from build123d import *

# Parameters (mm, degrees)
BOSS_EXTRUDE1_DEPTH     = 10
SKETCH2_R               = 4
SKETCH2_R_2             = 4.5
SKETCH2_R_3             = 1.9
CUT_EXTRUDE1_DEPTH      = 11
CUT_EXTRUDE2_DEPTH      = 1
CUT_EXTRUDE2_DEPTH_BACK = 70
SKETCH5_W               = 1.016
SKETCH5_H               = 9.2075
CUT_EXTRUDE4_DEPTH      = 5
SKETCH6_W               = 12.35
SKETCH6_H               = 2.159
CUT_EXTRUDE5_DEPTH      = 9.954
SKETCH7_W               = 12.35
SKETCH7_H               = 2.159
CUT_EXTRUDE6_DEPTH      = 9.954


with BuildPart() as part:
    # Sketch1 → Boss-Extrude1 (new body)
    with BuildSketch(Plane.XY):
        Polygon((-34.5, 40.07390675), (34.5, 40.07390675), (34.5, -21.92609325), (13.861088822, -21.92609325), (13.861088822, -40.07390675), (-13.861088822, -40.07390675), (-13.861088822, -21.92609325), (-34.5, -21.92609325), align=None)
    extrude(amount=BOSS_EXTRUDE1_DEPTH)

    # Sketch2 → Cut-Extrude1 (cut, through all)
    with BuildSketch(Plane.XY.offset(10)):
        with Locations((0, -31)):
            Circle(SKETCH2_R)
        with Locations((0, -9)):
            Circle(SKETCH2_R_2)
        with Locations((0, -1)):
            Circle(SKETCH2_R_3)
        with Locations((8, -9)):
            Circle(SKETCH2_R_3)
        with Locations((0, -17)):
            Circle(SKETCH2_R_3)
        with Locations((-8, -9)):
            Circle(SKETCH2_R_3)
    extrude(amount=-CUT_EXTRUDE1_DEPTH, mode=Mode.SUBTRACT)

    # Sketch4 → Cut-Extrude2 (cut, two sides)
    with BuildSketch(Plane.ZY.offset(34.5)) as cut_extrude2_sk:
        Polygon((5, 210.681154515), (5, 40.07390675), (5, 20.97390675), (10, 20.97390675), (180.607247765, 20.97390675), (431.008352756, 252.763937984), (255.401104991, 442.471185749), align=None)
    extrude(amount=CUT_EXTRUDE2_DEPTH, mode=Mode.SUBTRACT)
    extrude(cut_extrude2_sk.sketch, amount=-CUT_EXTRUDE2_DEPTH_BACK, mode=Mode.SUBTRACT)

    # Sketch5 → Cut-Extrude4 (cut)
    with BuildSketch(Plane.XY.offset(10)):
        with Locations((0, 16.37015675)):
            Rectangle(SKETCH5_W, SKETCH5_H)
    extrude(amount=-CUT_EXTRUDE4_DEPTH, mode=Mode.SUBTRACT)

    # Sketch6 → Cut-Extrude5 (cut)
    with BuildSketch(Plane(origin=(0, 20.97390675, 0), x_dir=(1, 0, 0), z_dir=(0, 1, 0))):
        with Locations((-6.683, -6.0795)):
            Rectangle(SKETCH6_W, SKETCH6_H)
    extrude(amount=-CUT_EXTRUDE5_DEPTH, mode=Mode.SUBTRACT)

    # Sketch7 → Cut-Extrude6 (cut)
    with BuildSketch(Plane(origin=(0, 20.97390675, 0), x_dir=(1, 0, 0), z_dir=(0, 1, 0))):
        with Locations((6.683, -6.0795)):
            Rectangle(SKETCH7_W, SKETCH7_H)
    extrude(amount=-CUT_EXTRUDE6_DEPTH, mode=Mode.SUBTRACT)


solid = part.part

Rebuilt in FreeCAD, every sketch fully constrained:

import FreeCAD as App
import Part
import Sketcher

V = App.Vector

doc = App.newDocument("Part")
body = doc.addObject("PartDesign::Body", "Body")

sketch1 = body.newObject("Sketcher::SketchObject", "Sketch")
sketch1.AttachmentSupport = (doc.getObject("XY_Plane"), [""])
sketch1.MapMode = "FlatFace"
sketch1.addGeometry([
    Part.LineSegment(V(34, 40, 0), V(-34, 40, 0)),
    Part.LineSegment(V(-34, 40, 0), V(-34, -22, 0)),
    Part.LineSegment(V(-34, -22, 0), V(-14, -22, 0)),
    Part.LineSegment(V(-14, -22, 0), V(-14, -40, 0)),
    Part.LineSegment(V(-14, -40, 0), V(14, -40, 0)),
    Part.LineSegment(V(14, -40, 0), V(14, -22, 0)),
    Part.LineSegment(V(14, -22, 0), V(34, -22, 0)),
    Part.LineSegment(V(34, -22, 0), V(34, 40, 0)),
], False)
sketch1.addConstraint([
    Sketcher.Constraint("Coincident", 0, 2, 1, 1),
    Sketcher.Constraint("Coincident", 1, 2, 2, 1),
    Sketcher.Constraint("Coincident", 2, 2, 3, 1),
    Sketcher.Constraint("Coincident", 3, 2, 4, 1),
    Sketcher.Constraint("Coincident", 4, 2, 5, 1),
    Sketcher.Constraint("Coincident", 5, 2, 6, 1),
    Sketcher.Constraint("Coincident", 6, 2, 7, 1),
    Sketcher.Constraint("Coincident", 7, 2, 0, 1),
    Sketcher.Constraint("Horizontal", 0),
    Sketcher.Constraint("Vertical", 1),
    Sketcher.Constraint("Horizontal", 2),
    Sketcher.Constraint("Vertical", 3),
    Sketcher.Constraint("Horizontal", 4),
    Sketcher.Constraint("Vertical", 5),
    Sketcher.Constraint("Horizontal", 6),
    Sketcher.Constraint("Vertical", 7),
    Sketcher.Constraint("Symmetric", 2, 2, 5, 2, -2),
    Sketcher.Constraint("Equal", 2, 6),
    Sketcher.Constraint("DistanceX", 0, 2, 0, 1, 69.0),
    Sketcher.Constraint("DistanceY", 1, 2, 1, 1, 62.0),
    Sketcher.Constraint("DistanceX", 2, 1, 2, 2, 20.638911),
    Sketcher.Constraint("DistanceY", 3, 2, 3, 1, 18.147813),
    Sketcher.Constraint("DistanceY", -1, 1, 0, 2, 40.073907),
])
pad1 = body.newObject("PartDesign::Pad", "Pad")
pad1.Profile = sketch1
pad1.Length = 10

sketch2 = body.newObject("Sketcher::SketchObject", "Sketch001")
sketch2.AttachmentSupport = (doc.getObject("XY_Plane"), [""])
sketch2.MapMode = "FlatFace"
sketch2.AttachmentOffset = App.Placement(V(0, 0, 10), App.Rotation())
sketch2.addGeometry([
    Part.Circle(V(0, -31, 0), V(0, 0, 1), 4),
    Part.Circle(V(0, -9, 0), V(0, 0, 1), 4.5),
    Part.Circle(V(0, -1, 0), V(0, 0, 1), 1.9),
    Part.Circle(V(8, -9, 0), V(0, 0, 1), 1.9),
    Part.Circle(V(0, -17, 0), V(0, 0, 1), 1.9),
    Part.Circle(V(-8, -9, 0), V(0, 0, 1), 1.9),
], False)
sketch2.addConstraint([
    Sketcher.Constraint("Equal", 2, 3),
    Sketcher.Constraint("Equal", 3, 4),
    Sketcher.Constraint("Equal", 4, 5),
    Sketcher.Constraint("Symmetric", 3, 3, 5, 3, -2),
    Sketcher.Constraint("PointOnObject", 0, 3, -2),
    Sketcher.Constraint("PointOnObject", 1, 3, -2),
    Sketcher.Constraint("PointOnObject", 2, 3, -2),
    Sketcher.Constraint("PointOnObject", 4, 3, -2),
    Sketcher.Constraint("Horizontal", 1, 3, 3, 3),
    Sketcher.Constraint("Diameter", 0, 8.0),
    Sketcher.Constraint("Diameter", 1, 9.0),
    Sketcher.Constraint("Diameter", 2, 3.8),
    Sketcher.Constraint("DistanceY", 0, 3, -1, 1, 31.0),
    Sketcher.Constraint("DistanceY", 1, 3, -1, 1, 9.0),
    Sketcher.Constraint("DistanceY", 2, 3, -1, 1, 1.0),
    Sketcher.Constraint("DistanceX", -1, 1, 3, 3, 8.0),
    Sketcher.Constraint("DistanceY", 4, 3, -1, 1, 17.0),
])
pocket1 = body.newObject("PartDesign::Pocket", "Pocket")
pocket1.Profile = sketch2
pocket1.Type = "ThroughAll"

sketch3 = body.newObject("Sketcher::SketchObject", "Sketch002")
sketch3.AttachmentSupport = (doc.getObject("YZ_Plane"), [""])
sketch3.MapMode = "FlatFace"
sketch3.AttachmentOffset = App.Placement(V(0, 0, -34.5), App.Rotation())
sketch3.addGeometry([
    Part.LineSegment(V(211, 5, 0), V(21, 5, 0)),
    Part.LineSegment(V(21, 5, 0), V(21, 181, 0)),
    Part.LineSegment(V(21, 181, 0), V(253, 431, 0)),
    Part.LineSegment(V(253, 431, 0), V(442, 255, 0)),
    Part.LineSegment(V(442, 255, 0), V(211, 5, 0)),
], False)
sketch3.addConstraint([
    Sketcher.Constraint("Coincident", 0, 2, 1, 1),
    Sketcher.Constraint("Coincident", 1, 2, 2, 1),
    Sketcher.Constraint("Coincident", 2, 2, 3, 1),
    Sketcher.Constraint("Coincident", 3, 2, 4, 1),
    Sketcher.Constraint("Coincident", 4, 2, 0, 1),
    Sketcher.Constraint("Horizontal", 0),
    Sketcher.Constraint("Vertical", 1),
    Sketcher.Constraint("Perpendicular", 2, 3),
    Sketcher.Constraint("Perpendicular", 3, 4),
    Sketcher.Constraint("Equal", 2, 4),
    Sketcher.Constraint("DistanceY", -1, 1, 0, 2, 5.0),
    Sketcher.Constraint("DistanceX", 0, 2, 0, 1, 189.707248),
    Sketcher.Constraint("DistanceY", 1, 1, 1, 2, 175.607248),
    Sketcher.Constraint("DistanceX", 1, 2, 2, 2, 231.790031),
    Sketcher.Constraint("DistanceX", -1, 1, 0, 2, 20.973907),
])
pocket2 = body.newObject("PartDesign::Pocket", "Pocket001")
pocket2.Profile = sketch3
pocket2.Type = "ThroughAll"
pocket2.Midplane = True

sketch4 = body.newObject("Sketcher::SketchObject", "Sketch003")
sketch4.AttachmentSupport = (doc.getObject("XY_Plane"), [""])
sketch4.MapMode = "FlatFace"
sketch4.AttachmentOffset = App.Placement(V(0, 0, 10), App.Rotation())
sketch4.addGeometry([
    Part.LineSegment(V(-0.5, 21, 0), V(-0.5, 11.8, 0)),
    Part.LineSegment(V(-0.5, 11.8, 0), V(0.5, 11.8, 0)),
    Part.LineSegment(V(0.5, 11.8, 0), V(0.5, 21, 0)),
    Part.LineSegment(V(0.5, 21, 0), V(-0.5, 21, 0)),
], False)
sketch4.addConstraint([
    Sketcher.Constraint("Coincident", 0, 2, 1, 1),
    Sketcher.Constraint("Coincident", 1, 2, 2, 1),
    Sketcher.Constraint("Coincident", 2, 2, 3, 1),
    Sketcher.Constraint("Coincident", 3, 2, 0, 1),
    Sketcher.Constraint("Vertical", 0),
    Sketcher.Constraint("Horizontal", 1),
    Sketcher.Constraint("Vertical", 2),
    Sketcher.Constraint("Horizontal", 3),
    Sketcher.Constraint("DistanceX", 1, 1, 1, 2, 1.016),
    Sketcher.Constraint("DistanceY", 0, 2, 0, 1, 9.2075),
    Sketcher.Constraint("DistanceX", 0, 2, -1, 1, 0.508),
    Sketcher.Constraint("DistanceY", -1, 1, 0, 2, 11.766407),
])
pocket3 = body.newObject("PartDesign::Pocket", "Pocket002")
pocket3.Profile = sketch4
pocket3.Length = 5

sketch5 = body.newObject("Sketcher::SketchObject", "Sketch004")
sketch5.AttachmentSupport = (doc.getObject("XZ_Plane"), [""])
sketch5.MapMode = "FlatFace"
sketch5.AttachmentOffset = App.Placement(V(0, 0, -20.973907), App.Rotation())
sketch5.addGeometry([
    Part.LineSegment(V(-12.9, 5, 0), V(-12.9, 7.2, 0)),
    Part.LineSegment(V(-12.9, 7.2, 0), V(-0.5, 7.2, 0)),
    Part.LineSegment(V(-0.5, 7.2, 0), V(-0.5, 5, 0)),
    Part.LineSegment(V(-0.5, 5, 0), V(-12.9, 5, 0)),
], False)
sketch5.addConstraint([
    Sketcher.Constraint("Coincident", 0, 2, 1, 1),
    Sketcher.Constraint("Coincident", 1, 2, 2, 1),
    Sketcher.Constraint("Coincident", 2, 2, 3, 1),
    Sketcher.Constraint("Coincident", 3, 2, 0, 1),
    Sketcher.Constraint("Vertical", 0),
    Sketcher.Constraint("Horizontal", 1),
    Sketcher.Constraint("Vertical", 2),
    Sketcher.Constraint("Horizontal", 3),
    Sketcher.Constraint("DistanceY", -1, 1, 2, 2, 5.0),
    Sketcher.Constraint("DistanceX", 1, 1, 1, 2, 12.35),
    Sketcher.Constraint("DistanceY", 0, 1, 0, 2, 2.159),
    Sketcher.Constraint("DistanceX", 0, 2, -1, 1, 12.858),
])
pocket4 = body.newObject("PartDesign::Pocket", "Pocket003")
pocket4.Profile = sketch5
pocket4.Length = 9.954
pocket4.Reversed = True

sketch6 = body.newObject("Sketcher::SketchObject", "Sketch005")
sketch6.AttachmentSupport = (doc.getObject("XZ_Plane"), [""])
sketch6.MapMode = "FlatFace"
sketch6.AttachmentOffset = App.Placement(V(0, 0, -20.973907), App.Rotation())
sketch6.addGeometry([
    Part.LineSegment(V(0.5, 5, 0), V(0.5, 7.2, 0)),
    Part.LineSegment(V(0.5, 7.2, 0), V(12.9, 7.2, 0)),
    Part.LineSegment(V(12.9, 7.2, 0), V(12.9, 5, 0)),
    Part.LineSegment(V(12.9, 5, 0), V(0.5, 5, 0)),
], False)
sketch6.addConstraint([
    Sketcher.Constraint("Coincident", 0, 2, 1, 1),
    Sketcher.Constraint("Coincident", 1, 2, 2, 1),
    Sketcher.Constraint("Coincident", 2, 2, 3, 1),
    Sketcher.Constraint("Coincident", 3, 2, 0, 1),
    Sketcher.Constraint("Vertical", 0),
    Sketcher.Constraint("Horizontal", 1),
    Sketcher.Constraint("Vertical", 2),
    Sketcher.Constraint("Horizontal", 3),
    Sketcher.Constraint("DistanceY", -1, 1, 2, 2, 5.0),
    Sketcher.Constraint("DistanceX", 1, 1, 1, 2, 12.35),
    Sketcher.Constraint("DistanceY", 0, 1, 0, 2, 2.159),
    Sketcher.Constraint("DistanceX", -1, 1, 0, 2, 0.508),
])
pocket5 = body.newObject("PartDesign::Pocket", "Pocket004")
pocket5.Profile = sketch6
pocket5.Length = 9.954
pocket5.Reversed = True

doc.recompute()
